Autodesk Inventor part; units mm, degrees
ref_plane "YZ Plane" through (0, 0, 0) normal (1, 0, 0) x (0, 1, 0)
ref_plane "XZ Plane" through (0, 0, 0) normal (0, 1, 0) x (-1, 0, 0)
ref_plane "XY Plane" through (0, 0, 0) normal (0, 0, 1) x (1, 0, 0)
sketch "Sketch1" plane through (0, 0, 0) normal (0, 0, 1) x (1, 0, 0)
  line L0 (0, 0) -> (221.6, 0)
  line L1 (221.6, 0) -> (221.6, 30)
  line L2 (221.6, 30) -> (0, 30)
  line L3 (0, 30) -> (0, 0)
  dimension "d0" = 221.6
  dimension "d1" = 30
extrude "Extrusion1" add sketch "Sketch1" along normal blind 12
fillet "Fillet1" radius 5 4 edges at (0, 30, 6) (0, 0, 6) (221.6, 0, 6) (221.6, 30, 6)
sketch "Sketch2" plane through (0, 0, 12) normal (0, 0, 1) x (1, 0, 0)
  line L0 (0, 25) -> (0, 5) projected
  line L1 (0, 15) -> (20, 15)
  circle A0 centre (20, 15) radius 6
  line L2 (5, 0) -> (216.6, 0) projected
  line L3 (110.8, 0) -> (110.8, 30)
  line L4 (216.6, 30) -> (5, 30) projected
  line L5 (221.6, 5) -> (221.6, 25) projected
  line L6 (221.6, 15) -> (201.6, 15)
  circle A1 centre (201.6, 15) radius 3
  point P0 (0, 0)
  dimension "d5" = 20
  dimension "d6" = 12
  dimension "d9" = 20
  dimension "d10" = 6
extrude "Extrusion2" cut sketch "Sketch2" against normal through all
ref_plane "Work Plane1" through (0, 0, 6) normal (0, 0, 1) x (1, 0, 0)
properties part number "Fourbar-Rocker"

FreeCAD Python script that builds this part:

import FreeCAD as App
import Part
import Sketcher
Q = App.Units.Quantity


def edges_at(feature, points):
    """Names of the edges that pass closest to the given points."""
    edges = feature.Shape.Edges
    near = lambda p: min(range(len(edges)), key=lambda i: edges[i].distToShape(Part.Vertex(*p))[0])
    return sorted({f"Edge{near(p) + 1}" for p in points})


def add_polygon(sketch, points):
    """Adds a closed chain of lines whose ends are joined by coincident constraints."""
    first, n = sketch.GeometryCount, len(points)
    for a, b in zip(points, points[1:] + points[:1]):
        sketch.addGeometry(Part.LineSegment(App.Vector(*a, 0), App.Vector(*b, 0)), False)
    for i in range(n):
        sketch.addConstraint(Sketcher.Constraint("Coincident", first + i, 2, first + (i + 1) % n, 1))

doc = App.newDocument("Part")
body = doc.addObject("PartDesign::Body", "Body")

# Sketch on XY plane
sketch1 = body.newObject("Sketcher::SketchObject", "Sketch")
sketch1.AttachmentSupport = (doc.getObject("XY_Plane"), [""])
sketch1.MapMode = "FlatFace"
add_polygon(sketch1, [(0, 30), (0, 0), (221.6, 0), (221.6, 30)])  # lines 0-3
sketch1.addConstraint(Sketcher.Constraint("Vertical", 0))
sketch1.addConstraint(Sketcher.Constraint("Horizontal", 1))
sketch1.addConstraint(Sketcher.Constraint("Vertical", 2))
sketch1.addConstraint(Sketcher.Constraint("Horizontal", 3))
sketch1.addConstraint(Sketcher.Constraint("Coincident", 0, 2, -1, 1))
sketch1.addConstraint(Sketcher.Constraint("DistanceY", 0, 2, 0, 1, Q("30 mm")))
sketch1.addConstraint(Sketcher.Constraint("DistanceX", 1, 1, 1, 2, Q("221.6 mm")))
pad1 = body.newObject("PartDesign::Pad", "Pad")
pad1.Profile = sketch1
pad1.Length = 12
doc.recompute()

fillet = body.newObject("PartDesign::Fillet", "Fillet")
fillet.Base = (pad1, edges_at(pad1, [
    (0, 30, 6),
    (0, 0, 6),
    (221.6, 0, 6),
    (221.6, 30, 6),
]))
fillet.Radius = 5

# Sketch on XY plane
sketch2 = body.newObject("Sketcher::SketchObject", "Sketch001")
sketch2.AttachmentSupport = (doc.getObject("XY_Plane"), [""])
sketch2.MapMode = "FlatFace"
sketch2.AttachmentOffset = App.Placement(App.Vector(0, 0, 12), App.Rotation())
sketch2.addGeometry(Part.Circle(App.Vector(20, 15, 0), App.Vector(0, 0, 1), 6), False)
sketch2.addGeometry(Part.Circle(App.Vector(201.6, 15, 0), App.Vector(0, 0, 1), 3), False)
sketch2.addConstraint(Sketcher.Constraint("Horizontal", 0, 3, 1, 3))
sketch2.addConstraint(Sketcher.Constraint("Diameter", 0, Q("12 mm")))
sketch2.addConstraint(Sketcher.Constraint("Diameter", 1, Q("6 mm")))
sketch2.addConstraint(Sketcher.Constraint("DistanceX", -1, 1, 0, 3, Q("20 mm")))
sketch2.addConstraint(Sketcher.Constraint("DistanceY", -1, 1, 0, 3, Q("15 mm")))
sketch2.addConstraint(Sketcher.Constraint("DistanceX", -1, 1, 1, 3, Q("201.6 mm")))
pocket1 = body.newObject("PartDesign::Pocket", "Pocket")
pocket1.Profile = sketch2
pocket1.Type = "ThroughAll"

doc.recompute()
